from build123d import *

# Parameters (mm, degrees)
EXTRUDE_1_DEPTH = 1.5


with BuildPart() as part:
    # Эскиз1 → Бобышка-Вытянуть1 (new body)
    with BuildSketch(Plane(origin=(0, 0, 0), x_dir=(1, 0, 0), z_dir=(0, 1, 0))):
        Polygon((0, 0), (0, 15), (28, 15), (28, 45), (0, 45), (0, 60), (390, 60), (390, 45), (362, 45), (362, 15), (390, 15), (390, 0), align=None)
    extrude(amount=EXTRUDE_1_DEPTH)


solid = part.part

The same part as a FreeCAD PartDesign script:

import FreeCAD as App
import Part
import Sketcher

V = App.Vector
Q = App.Units.Quantity


def add_polygon(sketch, points):
    """Adds a closed chain of lines whose ends are joined by coincident constraints."""
    first, n = sketch.GeometryCount, len(points)
    for a, b in zip(points, points[1:] + points[:1]):
        sketch.addGeometry(Part.LineSegment(App.Vector(*a, 0), App.Vector(*b, 0)), False)
    for i in range(n):
        sketch.addConstraint(Sketcher.Constraint("Coincident", first + i, 2, first + (i + 1) % n, 1))

doc = App.newDocument("Part")
params = doc.addObject("Spreadsheet::Sheet", "Params")
for row, (alias, value) in enumerate([
    ("sketch1_width", "390 mm"),
    ("sketch1_width2", "28 mm"),
    ("sketch1_height", "15 mm"),
    ("sketch1_height2", "30 mm"),
    ("pad1_length", "1.5 mm"),
], start=1):
    params.set(f"A{row}", alias)
    params.set(f"B{row}", "=" + value)
    params.setAlias(f"B{row}", alias)

body = doc.addObject("PartDesign::Body", "Body")

# Sketch on XZ plane
sketch1 = body.newObject("Sketcher::SketchObject", "Sketch")
sketch1.AttachmentSupport = (doc.getObject("XZ_Plane"), [""])
sketch1.MapMode = "FlatFace"
add_polygon(sketch1, [(0, -15), (0, 0), (390, 0), (390, -15), (362, -15), (362, -45), (390, -45), (390, -60), (0, -60), (0, -45), (28, -45), (28, -15)])  # lines 0-11
sketch1.addConstraint([
    Sketcher.Constraint("Vertical", 0),
    Sketcher.Constraint("Horizontal", 1),
    Sketcher.Constraint("Vertical", 2),
    Sketcher.Constraint("Horizontal", 3),
    Sketcher.Constraint("Vertical", 4),
    Sketcher.Constraint("Horizontal", 5),
    Sketcher.Constraint("Vertical", 6),
    Sketcher.Constraint("Horizontal", 7),
    Sketcher.Constraint("Vertical", 8),
    Sketcher.Constraint("Horizontal", 9),
    Sketcher.Constraint("Vertical", 10),
    Sketcher.Constraint("Horizontal", 11),
    Sketcher.Constraint("Coincident", 0, 2, -1, 1),
    Sketcher.Constraint("PointOnObject", 7, 2, -2),
    Sketcher.Constraint("Horizontal", 5, 2, 8, 2),
    Sketcher.Constraint("Horizontal", 3, 2, 10, 2),
    Sketcher.Constraint("Vertical", 2, 2, 5, 2),
    Sketcher.Constraint("Equal", 5, 9),
    Sketcher.Constraint("Equal", 2, 6),
    Sketcher.Constraint("DistanceX", 1, 1, 1, 2, Q("390 mm")),
    Sketcher.Constraint("DistanceX", 3, 2, 3, 1, Q("28 mm")),
    Sketcher.Constraint("DistanceY", 0, 1, 0, 2, Q("15 mm")),
    Sketcher.Constraint("DistanceY", 4, 2, 4, 1, Q("30 mm")),
])
sketch1.setExpression("Constraints[31]", "Params.sketch1_width")
sketch1.setExpression("Constraints[32]", "Params.sketch1_width2")
sketch1.setExpression("Constraints[33]", "Params.sketch1_height")
sketch1.setExpression("Constraints[34]", "Params.sketch1_height2")
pad1 = body.newObject("PartDesign::Pad", "Pad")
pad1.Profile = sketch1
pad1.setExpression("Length", "Params.pad1_length")
pad1.Reversed = True

doc.recompute()
